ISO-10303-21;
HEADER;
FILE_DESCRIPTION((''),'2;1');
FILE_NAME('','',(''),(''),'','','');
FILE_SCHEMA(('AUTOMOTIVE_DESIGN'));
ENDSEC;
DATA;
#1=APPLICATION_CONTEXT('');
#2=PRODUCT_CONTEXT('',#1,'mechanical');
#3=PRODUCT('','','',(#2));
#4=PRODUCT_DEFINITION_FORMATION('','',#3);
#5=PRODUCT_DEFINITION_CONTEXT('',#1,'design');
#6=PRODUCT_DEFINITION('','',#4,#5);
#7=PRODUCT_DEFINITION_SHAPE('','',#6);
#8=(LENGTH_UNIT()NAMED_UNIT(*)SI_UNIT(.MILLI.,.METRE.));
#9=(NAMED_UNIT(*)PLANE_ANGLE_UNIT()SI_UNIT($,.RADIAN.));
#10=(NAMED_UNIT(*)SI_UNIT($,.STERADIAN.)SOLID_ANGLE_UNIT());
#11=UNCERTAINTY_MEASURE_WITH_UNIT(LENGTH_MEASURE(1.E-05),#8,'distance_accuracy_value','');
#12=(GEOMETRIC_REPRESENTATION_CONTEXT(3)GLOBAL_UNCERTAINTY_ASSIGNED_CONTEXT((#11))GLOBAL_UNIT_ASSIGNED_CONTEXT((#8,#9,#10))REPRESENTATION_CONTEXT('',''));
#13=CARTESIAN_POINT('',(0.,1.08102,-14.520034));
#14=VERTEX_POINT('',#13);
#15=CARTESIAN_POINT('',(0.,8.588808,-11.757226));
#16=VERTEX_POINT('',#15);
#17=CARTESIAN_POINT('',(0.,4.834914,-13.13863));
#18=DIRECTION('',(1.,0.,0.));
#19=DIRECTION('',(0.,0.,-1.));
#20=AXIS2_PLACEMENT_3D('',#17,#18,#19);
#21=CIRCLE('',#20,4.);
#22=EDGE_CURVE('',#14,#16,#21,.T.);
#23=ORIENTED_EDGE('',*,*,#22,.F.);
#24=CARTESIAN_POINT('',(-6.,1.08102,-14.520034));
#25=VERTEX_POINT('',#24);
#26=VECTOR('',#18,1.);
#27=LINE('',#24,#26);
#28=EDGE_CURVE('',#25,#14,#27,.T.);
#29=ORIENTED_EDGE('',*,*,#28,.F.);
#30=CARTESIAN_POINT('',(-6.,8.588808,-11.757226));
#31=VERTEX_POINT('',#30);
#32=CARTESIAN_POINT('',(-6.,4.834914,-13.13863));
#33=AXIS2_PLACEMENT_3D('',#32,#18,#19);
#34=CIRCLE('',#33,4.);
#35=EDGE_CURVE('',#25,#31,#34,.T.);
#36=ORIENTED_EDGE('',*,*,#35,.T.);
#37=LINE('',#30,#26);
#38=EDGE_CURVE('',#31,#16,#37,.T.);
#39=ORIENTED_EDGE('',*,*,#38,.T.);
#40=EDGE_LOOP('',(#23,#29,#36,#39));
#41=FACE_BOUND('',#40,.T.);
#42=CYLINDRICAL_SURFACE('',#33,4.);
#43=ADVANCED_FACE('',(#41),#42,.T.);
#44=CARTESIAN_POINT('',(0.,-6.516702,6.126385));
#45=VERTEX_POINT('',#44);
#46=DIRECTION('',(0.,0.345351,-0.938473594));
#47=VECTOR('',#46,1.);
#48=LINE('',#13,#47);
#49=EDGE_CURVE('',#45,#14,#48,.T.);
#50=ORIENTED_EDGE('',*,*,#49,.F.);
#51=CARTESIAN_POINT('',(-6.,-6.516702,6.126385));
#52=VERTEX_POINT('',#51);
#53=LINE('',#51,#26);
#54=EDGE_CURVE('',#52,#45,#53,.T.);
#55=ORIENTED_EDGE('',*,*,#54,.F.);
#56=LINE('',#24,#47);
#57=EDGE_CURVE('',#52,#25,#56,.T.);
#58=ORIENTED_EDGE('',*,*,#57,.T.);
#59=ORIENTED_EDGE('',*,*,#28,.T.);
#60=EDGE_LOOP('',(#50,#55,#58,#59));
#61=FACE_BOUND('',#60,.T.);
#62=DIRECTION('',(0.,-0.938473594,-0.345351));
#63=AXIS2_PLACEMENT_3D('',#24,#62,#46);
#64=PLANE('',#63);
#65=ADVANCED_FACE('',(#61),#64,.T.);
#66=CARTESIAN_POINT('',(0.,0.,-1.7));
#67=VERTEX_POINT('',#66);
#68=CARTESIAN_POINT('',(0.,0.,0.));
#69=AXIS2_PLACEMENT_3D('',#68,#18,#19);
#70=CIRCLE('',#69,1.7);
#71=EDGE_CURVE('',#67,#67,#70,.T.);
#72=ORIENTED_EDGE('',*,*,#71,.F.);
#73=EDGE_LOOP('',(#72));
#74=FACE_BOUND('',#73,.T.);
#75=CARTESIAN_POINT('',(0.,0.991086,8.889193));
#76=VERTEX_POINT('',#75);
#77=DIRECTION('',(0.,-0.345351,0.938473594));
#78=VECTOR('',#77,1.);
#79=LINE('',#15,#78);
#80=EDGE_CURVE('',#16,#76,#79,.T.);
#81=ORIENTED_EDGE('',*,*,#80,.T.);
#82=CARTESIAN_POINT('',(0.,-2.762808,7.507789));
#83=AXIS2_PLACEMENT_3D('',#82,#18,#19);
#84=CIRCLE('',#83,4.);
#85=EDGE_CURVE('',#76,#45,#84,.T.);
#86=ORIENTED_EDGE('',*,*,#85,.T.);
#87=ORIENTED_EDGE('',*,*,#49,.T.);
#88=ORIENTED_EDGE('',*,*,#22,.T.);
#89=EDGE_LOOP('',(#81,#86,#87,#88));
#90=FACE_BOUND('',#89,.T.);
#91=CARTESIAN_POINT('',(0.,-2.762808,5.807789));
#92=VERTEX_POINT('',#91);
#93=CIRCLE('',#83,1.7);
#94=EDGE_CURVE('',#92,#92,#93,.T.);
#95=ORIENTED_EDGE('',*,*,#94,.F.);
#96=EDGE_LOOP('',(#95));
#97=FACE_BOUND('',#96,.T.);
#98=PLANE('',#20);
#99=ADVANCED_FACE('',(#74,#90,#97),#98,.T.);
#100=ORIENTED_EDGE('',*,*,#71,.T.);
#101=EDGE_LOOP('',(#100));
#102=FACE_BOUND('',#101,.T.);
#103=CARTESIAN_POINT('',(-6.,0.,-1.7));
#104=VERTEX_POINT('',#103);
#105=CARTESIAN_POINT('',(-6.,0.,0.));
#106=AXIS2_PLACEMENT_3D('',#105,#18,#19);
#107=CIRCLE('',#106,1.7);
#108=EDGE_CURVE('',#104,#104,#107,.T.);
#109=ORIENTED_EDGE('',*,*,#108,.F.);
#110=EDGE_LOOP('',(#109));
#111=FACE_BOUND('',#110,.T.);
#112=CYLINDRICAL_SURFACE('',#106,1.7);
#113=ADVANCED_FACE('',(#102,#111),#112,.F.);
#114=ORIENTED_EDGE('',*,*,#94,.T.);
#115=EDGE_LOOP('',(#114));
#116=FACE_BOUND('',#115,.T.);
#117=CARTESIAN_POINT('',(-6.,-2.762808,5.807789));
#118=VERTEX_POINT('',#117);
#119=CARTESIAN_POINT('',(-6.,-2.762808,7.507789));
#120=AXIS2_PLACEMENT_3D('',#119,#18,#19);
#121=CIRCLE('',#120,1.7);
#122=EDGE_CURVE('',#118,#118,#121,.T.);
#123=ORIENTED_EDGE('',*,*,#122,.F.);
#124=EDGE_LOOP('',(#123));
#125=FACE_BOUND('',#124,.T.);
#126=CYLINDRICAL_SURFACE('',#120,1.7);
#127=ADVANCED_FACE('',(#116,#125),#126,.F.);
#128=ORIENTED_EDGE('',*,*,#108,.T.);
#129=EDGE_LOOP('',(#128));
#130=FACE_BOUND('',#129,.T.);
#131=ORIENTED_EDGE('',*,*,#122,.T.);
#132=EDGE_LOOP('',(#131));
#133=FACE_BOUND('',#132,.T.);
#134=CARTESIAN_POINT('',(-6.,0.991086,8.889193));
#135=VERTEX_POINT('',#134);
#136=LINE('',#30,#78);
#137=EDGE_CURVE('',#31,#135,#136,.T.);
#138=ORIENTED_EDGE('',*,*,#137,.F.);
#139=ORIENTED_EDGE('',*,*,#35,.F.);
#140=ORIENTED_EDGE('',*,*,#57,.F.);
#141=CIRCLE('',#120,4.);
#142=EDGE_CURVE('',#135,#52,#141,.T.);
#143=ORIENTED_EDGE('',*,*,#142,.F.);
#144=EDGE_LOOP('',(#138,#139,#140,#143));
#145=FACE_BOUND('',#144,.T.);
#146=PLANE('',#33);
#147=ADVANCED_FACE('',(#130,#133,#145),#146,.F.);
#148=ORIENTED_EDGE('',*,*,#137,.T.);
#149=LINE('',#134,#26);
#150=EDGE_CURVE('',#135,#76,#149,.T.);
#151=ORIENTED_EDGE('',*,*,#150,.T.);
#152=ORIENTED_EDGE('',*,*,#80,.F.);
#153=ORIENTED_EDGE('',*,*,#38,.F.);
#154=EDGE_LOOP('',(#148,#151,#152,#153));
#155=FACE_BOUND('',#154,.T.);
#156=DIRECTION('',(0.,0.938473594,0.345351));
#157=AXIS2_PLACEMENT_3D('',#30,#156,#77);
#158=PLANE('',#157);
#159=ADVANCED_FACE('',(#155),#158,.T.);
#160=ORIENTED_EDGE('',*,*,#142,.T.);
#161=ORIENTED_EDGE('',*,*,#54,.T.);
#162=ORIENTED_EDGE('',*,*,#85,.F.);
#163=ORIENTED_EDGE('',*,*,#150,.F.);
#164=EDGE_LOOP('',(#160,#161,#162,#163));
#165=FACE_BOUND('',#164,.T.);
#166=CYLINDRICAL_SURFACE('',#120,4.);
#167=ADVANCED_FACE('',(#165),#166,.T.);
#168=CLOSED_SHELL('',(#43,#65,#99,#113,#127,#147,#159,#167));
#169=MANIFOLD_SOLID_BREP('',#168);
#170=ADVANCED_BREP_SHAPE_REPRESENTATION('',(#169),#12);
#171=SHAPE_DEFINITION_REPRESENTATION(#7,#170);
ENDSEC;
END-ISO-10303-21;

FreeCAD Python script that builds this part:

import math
import FreeCAD as App
import Part
import Sketcher
from FreeCAD import Vector

doc = App.newDocument("Part")
body = doc.addObject("PartDesign::Body", "Body")

# Sketch on YZ plane
sketch1 = body.newObject("Sketcher::SketchObject", "Sketch")
sketch1.AttachmentSupport = (doc.getObject("YZ_Plane"), [""])
sketch1.MapMode = "FlatFace"
sketch1.addGeometry(Part.LineSegment(Vector(-6.5, 6.1, 0), Vector(1.1, -14.5, 0)), False)
sketch1.addGeometry(Part.ArcOfCircle(Part.Circle(Vector(4.8, -13.1, 0), Vector(0, 0, 1), 4), math.radians(-160), math.radians(20)), False)
sketch1.addGeometry(Part.LineSegment(Vector(8.6, -11.8, 0), Vector(1, 8.9, 0)), False)
sketch1.addGeometry(Part.ArcOfCircle(Part.Circle(Vector(-2.8, 7.5, 0), Vector(0, 0, 1), 4), math.radians(20), math.radians(200)), False)
sketch1.addGeometry(Part.Circle(Vector(-2.8, 7.5, 0), Vector(0, 0, 1), 1.7), False)
sketch1.addGeometry(Part.Circle(Vector(0, 0, 0), Vector(0, 0, 1), 1.7), False)
sketch1.addConstraint(Sketcher.Constraint("Tangent", 0, 2, 1, 1))
sketch1.addConstraint(Sketcher.Constraint("Tangent", 1, 2, 2, 1))
sketch1.addConstraint(Sketcher.Constraint("Tangent", 2, 2, 3, 1))
sketch1.addConstraint(Sketcher.Constraint("Tangent", 3, 2, 0, 1))
sketch1.addConstraint(Sketcher.Constraint("Coincident", 5, 3, -1, 1))
sketch1.addConstraint(Sketcher.Constraint("Coincident", 4, 3, 3, 3))
sketch1.addConstraint(Sketcher.Constraint("Equal", 1, 3))
sketch1.addConstraint(Sketcher.Constraint("Equal", 4, 5))
sketch1.addConstraint(Sketcher.Constraint("Radius", 1, 4.0))
sketch1.addConstraint(Sketcher.Constraint("Diameter", 4, 3.4))
sketch1.addConstraint(Sketcher.Constraint("Distance", 0, 22.0))
sketch1.addConstraint(Sketcher.Constraint("DistanceY", 1, 3, -1, 1, 13.13863))
sketch1.addConstraint(Sketcher.Constraint("DistanceY", -1, 1, 3, 3, 7.507789))
sketch1.addConstraint(Sketcher.Constraint("DistanceX", -1, 1, 0, 2, 1.08102))
pad1 = body.newObject("PartDesign::Pad", "Pad")
pad1.Profile = sketch1
pad1.Length = 6
pad1.Reversed = True

doc.recompute()
